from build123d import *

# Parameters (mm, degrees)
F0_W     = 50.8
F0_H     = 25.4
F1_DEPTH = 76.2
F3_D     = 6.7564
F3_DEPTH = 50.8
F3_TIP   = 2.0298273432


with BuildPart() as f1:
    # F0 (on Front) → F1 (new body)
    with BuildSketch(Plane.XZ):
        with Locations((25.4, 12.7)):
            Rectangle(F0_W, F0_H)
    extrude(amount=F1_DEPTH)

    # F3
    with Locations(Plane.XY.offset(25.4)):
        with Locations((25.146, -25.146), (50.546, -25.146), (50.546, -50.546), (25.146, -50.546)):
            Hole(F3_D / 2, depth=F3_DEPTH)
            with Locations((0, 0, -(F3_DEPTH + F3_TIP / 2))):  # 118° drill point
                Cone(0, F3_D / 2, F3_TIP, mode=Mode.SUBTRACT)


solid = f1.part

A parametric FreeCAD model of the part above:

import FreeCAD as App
import Part
import Sketcher

V = App.Vector
Q = App.Units.Quantity


def add_polygon(sketch, points):
    """Adds a closed chain of lines whose ends are joined by coincident constraints."""
    first, n = sketch.GeometryCount, len(points)
    for a, b in zip(points, points[1:] + points[:1]):
        sketch.addGeometry(Part.LineSegment(App.Vector(*a, 0), App.Vector(*b, 0)), False)
    for i in range(n):
        sketch.addConstraint(Sketcher.Constraint("Coincident", first + i, 2, first + (i + 1) % n, 1))

doc = App.newDocument("Part")
body = doc.addObject("PartDesign::Body", "Body")

# Sketch on XZ plane
sketch1 = doc.addObject("Sketcher::SketchObject", "Sketch")
body.addObject(sketch1)
sketch1.AttachmentSupport = (doc.XZ_Plane, [""])
sketch1.MapMode = "FlatFace"
add_polygon(sketch1, [(0, 25), (0, 0), (51, 0), (51, 25)])  # lines 0-3
sketch1.addConstraint(Sketcher.Constraint("Vertical", 0))
sketch1.addConstraint(Sketcher.Constraint("Horizontal", 1))
sketch1.addConstraint(Sketcher.Constraint("Vertical", 2))
sketch1.addConstraint(Sketcher.Constraint("Horizontal", 3))
sketch1.addConstraint(Sketcher.Constraint("Coincident", 0, 2, -1, 1))
sketch1.addConstraint(Sketcher.Constraint("DistanceX", 1, 1, 1, 2, Q("2 in")))
sketch1.addConstraint(Sketcher.Constraint("DistanceY", 0, 2, 0, 1, Q("1 in")))
pad1 = doc.addObject("PartDesign::Pad", "Pad")
body.addObject(pad1)
pad1.Profile = sketch1
pad1.Length = Q("3 in")

# Sketch on XY plane
sketch2 = doc.addObject("Sketcher::SketchObject", "Sketch001")
body.addObject(sketch2)
sketch2.AttachmentSupport = (doc.XY_Plane, [""])
sketch2.MapMode = "FlatFace"
sketch2.AttachmentOffset = App.Placement(V(0, 0, 1 * 25.4), App.Rotation())
sketch2.addGeometry(Part.Circle(V(25.1, -25.1, 0), V(0, 0, 1), 3.4), False)
sketch2.addGeometry(Part.Circle(V(50.5, -25.1, 0), V(0, 0, 1), 3.4), False)
sketch2.addGeometry(Part.Circle(V(50.5, -50.5, 0), V(0, 0, 1), 3.4), False)
sketch2.addGeometry(Part.Circle(V(25.1, -50.5, 0), V(0, 0, 1), 3.4), False)
sketch2.addConstraint(Sketcher.Constraint("Equal", 0, 1))
sketch2.addConstraint(Sketcher.Constraint("Equal", 1, 2))
sketch2.addConstraint(Sketcher.Constraint("Equal", 2, 3))
sketch2.addConstraint(Sketcher.Constraint("Horizontal", 0, 3, 1, 3))
sketch2.addConstraint(Sketcher.Constraint("Horizontal", 2, 3, 3, 3))
sketch2.addConstraint(Sketcher.Constraint("Vertical", 1, 3, 2, 3))
sketch2.addConstraint(Sketcher.Constraint("Vertical", 0, 3, 3, 3))
sketch2.addConstraint(Sketcher.Constraint("Diameter", 0, Q("0.266 in")))
sketch2.addConstraint(Sketcher.Constraint("DistanceX", 0, 3, 1, 3, Q("1 in")))
sketch2.addConstraint(Sketcher.Constraint("DistanceY", 2, 3, 1, 3, Q("1 in")))
sketch2.addConstraint(Sketcher.Constraint("DistanceX", -1, 1, 0, 3, Q("0.99 in")))
sketch2.addConstraint(Sketcher.Constraint("DistanceY", 0, 3, -1, 1, Q("0.99 in")))
doc.recompute()
hole = doc.addObject("PartDesign::Hole", "Hole")
body.addObject(hole)
hole.Profile = sketch2
hole.ThreadType = "None"
hole.Diameter = Q("0.266 in")
hole.DepthType = "Dimension"
hole.Depth = Q("2 in")
hole.DrillPoint = "Angled"
hole.DrillPointAngle = 118

doc.recompute()
